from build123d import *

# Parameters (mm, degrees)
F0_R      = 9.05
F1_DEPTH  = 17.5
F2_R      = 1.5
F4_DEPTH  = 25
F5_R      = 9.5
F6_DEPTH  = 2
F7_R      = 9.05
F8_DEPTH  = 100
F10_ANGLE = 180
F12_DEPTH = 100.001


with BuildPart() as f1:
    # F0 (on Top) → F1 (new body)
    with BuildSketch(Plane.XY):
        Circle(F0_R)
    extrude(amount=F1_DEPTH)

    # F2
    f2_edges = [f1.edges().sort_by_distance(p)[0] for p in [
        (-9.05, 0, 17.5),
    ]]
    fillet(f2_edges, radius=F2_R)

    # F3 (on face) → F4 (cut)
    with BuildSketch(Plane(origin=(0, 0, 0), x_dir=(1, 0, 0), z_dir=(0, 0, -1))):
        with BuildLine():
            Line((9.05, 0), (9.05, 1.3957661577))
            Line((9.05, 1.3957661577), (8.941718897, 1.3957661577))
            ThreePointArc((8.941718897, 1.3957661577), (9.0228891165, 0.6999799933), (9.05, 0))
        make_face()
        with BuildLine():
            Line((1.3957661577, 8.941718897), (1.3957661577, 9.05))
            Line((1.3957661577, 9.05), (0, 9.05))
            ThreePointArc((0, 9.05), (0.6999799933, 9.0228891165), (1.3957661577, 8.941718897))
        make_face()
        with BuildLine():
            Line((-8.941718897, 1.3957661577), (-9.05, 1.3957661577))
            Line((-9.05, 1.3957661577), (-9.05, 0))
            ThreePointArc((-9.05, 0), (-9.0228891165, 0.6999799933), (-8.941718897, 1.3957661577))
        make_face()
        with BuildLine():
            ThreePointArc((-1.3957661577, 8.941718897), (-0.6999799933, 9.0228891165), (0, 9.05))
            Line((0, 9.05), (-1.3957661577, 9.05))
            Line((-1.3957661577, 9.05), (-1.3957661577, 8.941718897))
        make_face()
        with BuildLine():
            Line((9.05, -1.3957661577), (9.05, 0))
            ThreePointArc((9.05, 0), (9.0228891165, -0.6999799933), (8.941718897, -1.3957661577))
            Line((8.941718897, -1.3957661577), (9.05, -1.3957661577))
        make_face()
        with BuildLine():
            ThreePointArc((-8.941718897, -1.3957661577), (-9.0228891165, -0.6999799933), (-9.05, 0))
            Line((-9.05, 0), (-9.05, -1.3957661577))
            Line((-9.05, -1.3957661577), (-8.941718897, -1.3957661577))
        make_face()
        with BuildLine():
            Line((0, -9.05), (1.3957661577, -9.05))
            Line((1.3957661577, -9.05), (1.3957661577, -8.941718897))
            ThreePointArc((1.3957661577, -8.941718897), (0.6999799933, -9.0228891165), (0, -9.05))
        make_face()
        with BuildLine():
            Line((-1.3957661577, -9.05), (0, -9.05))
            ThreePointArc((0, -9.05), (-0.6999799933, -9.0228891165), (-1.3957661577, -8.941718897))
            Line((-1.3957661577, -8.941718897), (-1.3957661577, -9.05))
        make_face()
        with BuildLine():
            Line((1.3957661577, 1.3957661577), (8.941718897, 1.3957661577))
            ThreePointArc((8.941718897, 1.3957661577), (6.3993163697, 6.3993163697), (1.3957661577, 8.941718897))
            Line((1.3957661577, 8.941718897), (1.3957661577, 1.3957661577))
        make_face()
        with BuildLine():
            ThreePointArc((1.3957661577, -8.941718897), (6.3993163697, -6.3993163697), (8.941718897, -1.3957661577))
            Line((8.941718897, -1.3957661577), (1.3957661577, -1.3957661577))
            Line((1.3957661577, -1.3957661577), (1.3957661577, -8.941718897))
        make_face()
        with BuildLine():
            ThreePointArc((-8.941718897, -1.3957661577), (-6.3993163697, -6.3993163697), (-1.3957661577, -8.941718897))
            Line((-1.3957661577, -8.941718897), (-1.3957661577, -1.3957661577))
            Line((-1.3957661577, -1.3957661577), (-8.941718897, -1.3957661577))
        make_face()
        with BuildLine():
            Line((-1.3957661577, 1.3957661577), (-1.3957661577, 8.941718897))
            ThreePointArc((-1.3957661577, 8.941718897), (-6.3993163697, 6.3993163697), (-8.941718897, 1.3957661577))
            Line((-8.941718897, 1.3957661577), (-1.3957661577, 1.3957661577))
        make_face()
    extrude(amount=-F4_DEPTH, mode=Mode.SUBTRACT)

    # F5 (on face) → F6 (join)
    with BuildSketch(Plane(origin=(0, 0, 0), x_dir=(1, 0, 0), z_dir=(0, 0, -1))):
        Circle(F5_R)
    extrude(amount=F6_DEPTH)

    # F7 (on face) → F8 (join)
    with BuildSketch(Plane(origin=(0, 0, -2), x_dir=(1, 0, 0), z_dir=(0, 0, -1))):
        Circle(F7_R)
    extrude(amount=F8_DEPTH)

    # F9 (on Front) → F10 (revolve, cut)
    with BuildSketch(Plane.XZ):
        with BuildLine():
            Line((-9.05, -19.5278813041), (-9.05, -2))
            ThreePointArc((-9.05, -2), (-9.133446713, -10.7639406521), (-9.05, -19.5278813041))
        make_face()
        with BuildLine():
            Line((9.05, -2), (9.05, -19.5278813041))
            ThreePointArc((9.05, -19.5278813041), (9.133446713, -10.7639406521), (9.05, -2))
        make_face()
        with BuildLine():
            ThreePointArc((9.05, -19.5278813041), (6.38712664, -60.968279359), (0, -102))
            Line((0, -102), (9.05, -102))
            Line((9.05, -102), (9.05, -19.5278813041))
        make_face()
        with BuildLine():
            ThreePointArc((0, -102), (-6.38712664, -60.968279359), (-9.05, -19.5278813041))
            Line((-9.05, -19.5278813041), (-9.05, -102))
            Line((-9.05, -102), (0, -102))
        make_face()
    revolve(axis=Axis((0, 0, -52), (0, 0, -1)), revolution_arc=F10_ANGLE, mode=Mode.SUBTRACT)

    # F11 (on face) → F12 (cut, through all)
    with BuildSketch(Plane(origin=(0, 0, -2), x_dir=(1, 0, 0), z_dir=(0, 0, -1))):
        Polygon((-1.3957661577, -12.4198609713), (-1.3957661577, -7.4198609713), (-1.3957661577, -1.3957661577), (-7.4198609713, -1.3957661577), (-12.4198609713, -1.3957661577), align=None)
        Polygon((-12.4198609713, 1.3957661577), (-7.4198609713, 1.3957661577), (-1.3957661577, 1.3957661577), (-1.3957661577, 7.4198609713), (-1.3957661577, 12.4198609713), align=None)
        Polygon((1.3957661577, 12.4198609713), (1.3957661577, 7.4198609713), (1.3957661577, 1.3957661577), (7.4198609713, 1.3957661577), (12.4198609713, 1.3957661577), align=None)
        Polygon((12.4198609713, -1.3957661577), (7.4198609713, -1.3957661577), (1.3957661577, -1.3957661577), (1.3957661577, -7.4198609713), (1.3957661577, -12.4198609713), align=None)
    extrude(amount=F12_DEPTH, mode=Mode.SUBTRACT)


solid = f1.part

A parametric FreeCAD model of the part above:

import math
import FreeCAD as App
import Part
import Sketcher


def edges_at(feature, points):
    """Names of the edges that pass closest to the given points."""
    edges = feature.Shape.Edges
    near = lambda p: min(range(len(edges)), key=lambda i: edges[i].distToShape(Part.Vertex(*p))[0])
    return sorted({f"Edge{near(p) + 1}" for p in points})

doc = App.newDocument("Part")
body = doc.addObject("PartDesign::Body", "Body")

sketch1 = doc.addObject("Sketcher::SketchObject", "Sketch")
body.addObject(sketch1)
sketch1.AttachmentSupport = (doc.XY_Plane, [""])
sketch1.MapMode = "FlatFace"
sketch1.addGeometry(Part.Circle(App.Vector(0, 0, 0), App.Vector(0, 0, 1), 9), False)
sketch1.addConstraint([
    Sketcher.Constraint("Coincident", 0, 3, -1, 1),
    Sketcher.Constraint("Diameter", 0, 18.1),
])
pad1 = doc.addObject("PartDesign::Pad", "Pad")
body.addObject(pad1)
pad1.Profile = sketch1
pad1.Length = 17.5
doc.recompute()

fillet = doc.addObject("PartDesign::Fillet", "Fillet")
body.addObject(fillet)
fillet.Base = (pad1, edges_at(pad1, [(-9.05, 0, 17.5)]))
fillet.Radius = 1.5

sketch2 = doc.addObject("Sketcher::SketchObject", "Sketch001")
body.addObject(sketch2)
sketch2.AttachmentSupport = (doc.XY_Plane, [""])
sketch2.MapMode = "FlatFace"
sketch2.addGeometry([
    Part.LineSegment(App.Vector(9.05, 0, 0), App.Vector(9.05, -1.4, 0)),
    Part.LineSegment(App.Vector(9.05, -1.4, 0), App.Vector(8.94, -1.4, 0)),
    Part.ArcOfCircle(Part.Circle(App.Vector(0, 0, 0), App.Vector(0, 0, 1), 9.05), math.radians(-8.87), math.radians(0)),
    Part.LineSegment(App.Vector(1.4, -8.94, 0), App.Vector(1.4, -9.05, 0)),
    Part.LineSegment(App.Vector(1.4, -9.05, 0), App.Vector(0, -9.05, 0)),
    Part.ArcOfCircle(Part.Circle(App.Vector(0, 0, 0), App.Vector(0, 0, 1), 9.05), math.radians(-90), math.radians(-81.13)),
    Part.LineSegment(App.Vector(-8.94, -1.4, 0), App.Vector(-9.05, -1.4, 0)),
    Part.LineSegment(App.Vector(-9.05, -1.4, 0), App.Vector(-9.05, 0, 0)),
    Part.ArcOfCircle(Part.Circle(App.Vector(0, 0, 0), App.Vector(0, 0, 1), 9.05), math.radians(180), math.radians(188.87)),
    Part.ArcOfCircle(Part.Circle(App.Vector(0, 0, 0), App.Vector(0, 0, 1), 9.05), math.radians(-98.87), math.radians(-90)),
    Part.LineSegment(App.Vector(0, -9.05, 0), App.Vector(-1.4, -9.05, 0)),
    Part.LineSegment(App.Vector(-1.4, -9.05, 0), App.Vector(-1.4, -8.94, 0)),
    Part.LineSegment(App.Vector(9.05, 1.4, 0), App.Vector(9.05, 0, 0)),
    Part.ArcOfCircle(Part.Circle(App.Vector(0, 0, 0), App.Vector(0, 0, 1), 9.05), math.radians(0), math.radians(8.87)),
    Part.LineSegment(App.Vector(8.94, 1.4, 0), App.Vector(9.05, 1.4, 0)),
    Part.ArcOfCircle(Part.Circle(App.Vector(0, 0, 0), App.Vector(0, 0, 1), 9.05), math.radians(171.13), math.radians(180)),
    Part.LineSegment(App.Vector(-9.05, 0, 0), App.Vector(-9.05, 1.4, 0)),
    Part.LineSegment(App.Vector(-9.05, 1.4, 0), App.Vector(-8.94, 1.4, 0)),
    Part.LineSegment(App.Vector(0, 9.05, 0), App.Vector(1.4, 9.05, 0)),
    Part.LineSegment(App.Vector(1.4, 9.05, 0), App.Vector(1.4, 8.94, 0)),
    Part.ArcOfCircle(Part.Circle(App.Vector(0, 0, 0), App.Vector(0, 0, 1), 9.05), math.radians(81.13), math.radians(90)),
    Part.LineSegment(App.Vector(-1.4, 9.05, 0), App.Vector(0, 9.05, 0)),
    Part.ArcOfCircle(Part.Circle(App.Vector(0, 0, 0), App.Vector(0, 0, 1), 9.05), math.radians(90), math.radians(98.87)),
    Part.LineSegment(App.Vector(-1.4, 8.94, 0), App.Vector(-1.4, 9.05, 0)),
    Part.LineSegment(App.Vector(1.4, -1.4, 0), App.Vector(8.94, -1.4, 0)),
    Part.ArcOfCircle(Part.Circle(App.Vector(0, 0, 0), App.Vector(0, 0, 1), 9.05), math.radians(-81), math.radians(-9)),
    Part.LineSegment(App.Vector(1.4, -8.94, 0), App.Vector(1.4, -1.4, 0)),
    Part.ArcOfCircle(Part.Circle(App.Vector(0, 0, 0), App.Vector(0, 0, 1), 9.05), math.radians(9), math.radians(81)),
    Part.LineSegment(App.Vector(8.94, 1.4, 0), App.Vector(1.4, 1.4, 0)),
    Part.LineSegment(App.Vector(1.4, 1.4, 0), App.Vector(1.4, 8.94, 0)),
    Part.ArcOfCircle(Part.Circle(App.Vector(0, 0, 0), App.Vector(0, 0, 1), 9.05), math.radians(99), math.radians(171)),
    Part.LineSegment(App.Vector(-1.4, 8.94, 0), App.Vector(-1.4, 1.4, 0)),
    Part.LineSegment(App.Vector(-1.4, 1.4, 0), App.Vector(-8.94, 1.4, 0)),
    Part.LineSegment(App.Vector(-1.4, -1.4, 0), App.Vector(-1.4, -8.94, 0)),
    Part.ArcOfCircle(Part.Circle(App.Vector(0, 0, 0), App.Vector(0, 0, 1), 9.05), math.radians(-171), math.radians(-99)),
    Part.LineSegment(App.Vector(-8.94, -1.4, 0), App.Vector(-1.4, -1.4, 0)),
], False)
sketch2.addConstraint([
    Sketcher.Constraint("Coincident", 0, 2, 1, 1),
    Sketcher.Constraint("Coincident", 1, 2, 2, 1),
    Sketcher.Constraint("Tangent", 2, 2, 0, 1),
    Sketcher.Constraint("Coincident", 3, 2, 4, 1),
    Sketcher.Constraint("Tangent", 4, 2, 5, 1),
    Sketcher.Constraint("Coincident", 5, 2, 3, 1),
    Sketcher.Constraint("Coincident", 6, 2, 7, 1),
    Sketcher.Constraint("Tangent", 7, 2, 8, 1),
    Sketcher.Constraint("Coincident", 8, 2, 6, 1),
    Sketcher.Constraint("Tangent", 9, 2, 10, 1),
    Sketcher.Constraint("Coincident", 10, 2, 11, 1),
    Sketcher.Constraint("Coincident", 11, 2, 9, 1),
    Sketcher.Constraint("Tangent", 12, 2, 13, 1),
    Sketcher.Constraint("Coincident", 13, 2, 14, 1),
    Sketcher.Constraint("Coincident", 14, 2, 12, 1),
    Sketcher.Constraint("Tangent", 15, 2, 16, 1),
    Sketcher.Constraint("Coincident", 16, 2, 17, 1),
    Sketcher.Constraint("Coincident", 17, 2, 15, 1),
    Sketcher.Constraint("Coincident", 18, 2, 19, 1),
    Sketcher.Constraint("Coincident", 19, 2, 20, 1),
    Sketcher.Constraint("Tangent", 20, 2, 18, 1),
    Sketcher.Constraint("Tangent", 21, 2, 22, 1),
    Sketcher.Constraint("Coincident", 22, 2, 23, 1),
    Sketcher.Constraint("Coincident", 23, 2, 21, 1),
    Sketcher.Constraint("Coincident", 24, 2, 25, 2),
    Sketcher.Constraint("Coincident", 25, 1, 26, 1),
    Sketcher.Constraint("Coincident", 26, 2, 24, 1),
    Sketcher.Constraint("Coincident", 27, 1, 28, 1),
    Sketcher.Constraint("Coincident", 28, 2, 29, 1),
    Sketcher.Constraint("Coincident", 29, 2, 27, 2),
    Sketcher.Constraint("Coincident", 30, 1, 31, 1),
    Sketcher.Constraint("Coincident", 31, 2, 32, 1),
    Sketcher.Constraint("Coincident", 32, 2, 30, 2),
    Sketcher.Constraint("Coincident", 33, 2, 34, 2),
    Sketcher.Constraint("Coincident", 34, 1, 35, 1),
    Sketcher.Constraint("Coincident", 35, 2, 33, 1),
    Sketcher.Constraint("Vertical", 0),
    Sketcher.Constraint("Horizontal", 1),
    Sketcher.Constraint("Vertical", 3),
    Sketcher.Constraint("Horizontal", 4),
    Sketcher.Constraint("Horizontal", 6),
    Sketcher.Constraint("Vertical", 7),
    Sketcher.Constraint("Horizontal", 10),
    Sketcher.Constraint("Vertical", 11),
    Sketcher.Constraint("Vertical", 12),
    Sketcher.Constraint("Horizontal", 14),
    Sketcher.Constraint("Vertical", 16),
    Sketcher.Constraint("Horizontal", 17),
    Sketcher.Constraint("Horizontal", 18),
    Sketcher.Constraint("Vertical", 19),
    Sketcher.Constraint("Horizontal", 21),
    Sketcher.Constraint("Vertical", 23),
    Sketcher.Constraint("Horizontal", 24),
    Sketcher.Constraint("Vertical", 26),
    Sketcher.Constraint("Horizontal", 28),
    Sketcher.Constraint("Vertical", 29),
    Sketcher.Constraint("Vertical", 31),
    Sketcher.Constraint("Horizontal", 32),
    Sketcher.Constraint("Vertical", 33),
    Sketcher.Constraint("Horizontal", 35),
    Sketcher.Constraint("Coincident", 2, 3, -1, 1),
    Sketcher.Constraint("Coincident", 5, 3, -1, 1),
    Sketcher.Constraint("Coincident", 8, 3, -1, 1),
    Sketcher.Constraint("Coincident", 9, 3, -1, 1),
    Sketcher.Constraint("Coincident", 13, 3, -1, 1),
    Sketcher.Constraint("Coincident", 15, 3, -1, 1),
    Sketcher.Constraint("Coincident", 20, 3, -1, 1),
    Sketcher.Constraint("Coincident", 22, 3, -1, 1),
    Sketcher.Constraint("Coincident", 25, 3, -1, 1),
    Sketcher.Constraint("Coincident", 27, 3, -1, 1),
    Sketcher.Constraint("Coincident", 30, 3, -1, 1),
    Sketcher.Constraint("Coincident", 34, 3, -1, 1),
    Sketcher.Constraint("Coincident", 24, 2, 1, 2),
    Sketcher.Constraint("Coincident", 25, 1, 5, 2),
    Sketcher.Constraint("Coincident", 27, 1, 13, 2),
    Sketcher.Constraint("Coincident", 29, 2, 19, 2),
    Sketcher.Constraint("Coincident", 30, 1, 22, 2),
    Sketcher.Constraint("Coincident", 32, 2, 17, 2),
    Sketcher.Constraint("Coincident", 33, 2, 11, 2),
    Sketcher.Constraint("Coincident", 34, 1, 8, 2),
    Sketcher.Constraint("Equal", 5, 8),
    Sketcher.Constraint("Equal", 9, 13),
    Sketcher.Constraint("Equal", 13, 15),
    Sketcher.Constraint("Symmetric", 26, 2, 31, 2, -1, 1),
    Sketcher.Constraint("Symmetric", 28, 2, 35, 2, -1, 1),
    Sketcher.Constraint("Symmetric", 28, 2, 31, 2, -2),
    Sketcher.Constraint("Equal", 21, 0),
    Sketcher.Constraint("Radius", 2, 9.05),
    Sketcher.Constraint("DistanceX", 1, 2, 1, 1, 0.108281),
])
pocket1 = doc.addObject("PartDesign::Pocket", "Pocket")
body.addObject(pocket1)
pocket1.Profile = sketch2
pocket1.Length = 25
pocket1.Reversed = True

sketch3 = doc.addObject("Sketcher::SketchObject", "Sketch002")
body.addObject(sketch3)
sketch3.AttachmentSupport = (doc.XY_Plane, [""])
sketch3.MapMode = "FlatFace"
sketch3.addGeometry(Part.Circle(App.Vector(0, 0, 0), App.Vector(0, 0, 1), 10), False)
sketch3.addConstraint([
    Sketcher.Constraint("Coincident", 0, 3, -1, 1),
    Sketcher.Constraint("Diameter", 0, 19.0),
])
pad2 = doc.addObject("PartDesign::Pad", "Pad001")
body.addObject(pad2)
pad2.Profile = sketch3
pad2.Length = 2
pad2.Reversed = True

sketch4 = doc.addObject("Sketcher::SketchObject", "Sketch003")
body.addObject(sketch4)
sketch4.AttachmentSupport = (doc.XY_Plane, [""])
sketch4.MapMode = "FlatFace"
sketch4.AttachmentOffset = App.Placement(App.Vector(0, 0, -2), App.Rotation())
sketch4.addGeometry(Part.Circle(App.Vector(0, 0, 0), App.Vector(0, 0, 1), 9), False)
sketch4.addConstraint([
    Sketcher.Constraint("Coincident", 0, 3, -1, 1),
    Sketcher.Constraint("Diameter", 0, 18.1),
])
pad3 = doc.addObject("PartDesign::Pad", "Pad002")
body.addObject(pad3)
pad3.Profile = sketch4
pad3.Length = 100
pad3.Reversed = True

sketch5 = doc.addObject("Sketcher::SketchObject", "Sketch004")
body.addObject(sketch5)
sketch5.AttachmentSupport = (doc.XZ_Plane, [""])
sketch5.MapMode = "FlatFace"
sketch5.addGeometry([
    Part.LineSegment(App.Vector(-9, -20, 0), App.Vector(-9, -2, 0)),
    Part.ArcOfCircle(Part.Circle(App.Vector(451, -11, 0), App.Vector(0, 0, 1), 460), math.radians(178.91), math.radians(181.09)),
    Part.LineSegment(App.Vector(9, -2, 0), App.Vector(9, -20, 0)),
    Part.ArcOfCircle(Part.Circle(App.Vector(-451, -11, 0), App.Vector(0, 0, 1), 460), math.radians(-1.09), math.radians(1.09)),
    Part.ArcOfCircle(Part.Circle(App.Vector(-451, -11, 0), App.Vector(0, 0, 1), 460), math.radians(-11.43), math.radians(-1.09)),
    Part.LineSegment(App.Vector(0, -102, 0), App.Vector(9, -102, 0)),
    Part.LineSegment(App.Vector(9, -102, 0), App.Vector(9, -20, 0)),
    Part.ArcOfCircle(Part.Circle(App.Vector(451, -11, 0), App.Vector(0, 0, 1), 460), math.radians(-178.91), math.radians(-168.57)),
    Part.LineSegment(App.Vector(-9, -20, 0), App.Vector(-9, -102, 0)),
    Part.LineSegment(App.Vector(-9, -102, 0), App.Vector(0, -102, 0)),
], False)
sketch5.addConstraint([
    Sketcher.Constraint("Coincident", 0, 1, 1, 2),
    Sketcher.Constraint("Coincident", 1, 1, 0, 2),
    Sketcher.Constraint("Coincident", 2, 1, 3, 2),
    Sketcher.Constraint("Coincident", 3, 1, 2, 2),
    Sketcher.Constraint("Coincident", 4, 1, 5, 1),
    Sketcher.Constraint("Coincident", 5, 2, 6, 1),
    Sketcher.Constraint("Coincident", 6, 2, 4, 2),
    Sketcher.Constraint("Coincident", 7, 1, 8, 1),
    Sketcher.Constraint("Coincident", 8, 2, 9, 1),
    Sketcher.Constraint("Coincident", 9, 2, 7, 2),
    Sketcher.Constraint("Vertical", 0),
    Sketcher.Constraint("Vertical", 2),
    Sketcher.Constraint("Horizontal", 5),
    Sketcher.Constraint("Vertical", 6),
    Sketcher.Constraint("Vertical", 8),
    Sketcher.Constraint("Horizontal", 9),
    Sketcher.Constraint("Coincident", 4, 3, 3, 3),
    Sketcher.Constraint("Coincident", 7, 3, 1, 3),
    Sketcher.Constraint("Coincident", 6, 2, 3, 1),
    Sketcher.Constraint("Coincident", 7, 1, 0, 1),
    Sketcher.Constraint("Equal", 1, 3),
    Sketcher.Constraint("Symmetric", 1, 3, 3, 3, -2),
    Sketcher.Constraint("Symmetric", 5, 2, 8, 2, -2),
    Sketcher.Constraint("PointOnObject", 4, 1, -2),
    Sketcher.Constraint("DistanceY", 2, 1, -1, 1, 2.0),
    Sketcher.Constraint("DistanceY", 5, 2, -1, 1, 102.0),
    Sketcher.Constraint("DistanceX", 5, 1, 5, 2, 9.05),
    Sketcher.Constraint("Radius", 1, 460.255511),
])
groove = doc.addObject("PartDesign::Groove", "Groove")
body.addObject(groove)
groove.Profile = sketch5
groove.ReferenceAxis = (sketch5, ["V_Axis"])
groove.Angle = 180
groove.Reversed = True

sketch6 = doc.addObject("Sketcher::SketchObject", "Sketch005")
body.addObject(sketch6)
sketch6.AttachmentSupport = (doc.XY_Plane, [""])
sketch6.MapMode = "FlatFace"
sketch6.AttachmentOffset = App.Placement(App.Vector(0, 0, -2), App.Rotation())
sketch6.addGeometry([
    Part.LineSegment(App.Vector(-1, 12, 0), App.Vector(-1, 1, 0)),
    Part.LineSegment(App.Vector(-1, 1, 0), App.Vector(-12, 1, 0)),
    Part.LineSegment(App.Vector(-12, 1, 0), App.Vector(-1, 12, 0)),
    Part.LineSegment(App.Vector(-12, -1, 0), App.Vector(-1, -1, 0)),
    Part.LineSegment(App.Vector(-1, -1, 0), App.Vector(-1, -12, 0)),
    Part.LineSegment(App.Vector(-1, -12, 0), App.Vector(-12, -1, 0)),
    Part.LineSegment(App.Vector(1, -12, 0), App.Vector(1, -1, 0)),
    Part.LineSegment(App.Vector(1, -1, 0), App.Vector(12, -1, 0)),
    Part.LineSegment(App.Vector(12, -1, 0), App.Vector(1, -12, 0)),
    Part.LineSegment(App.Vector(12, 1, 0), App.Vector(1, 1, 0)),
    Part.LineSegment(App.Vector(1, 1, 0), App.Vector(1, 12, 0)),
    Part.LineSegment(App.Vector(1, 12, 0), App.Vector(12, 1, 0)),
], False)
sketch6.addConstraint([
    Sketcher.Constraint("Coincident", 0, 2, 1, 1),
    Sketcher.Constraint("Coincident", 1, 2, 2, 1),
    Sketcher.Constraint("Coincident", 2, 2, 0, 1),
    Sketcher.Constraint("Coincident", 3, 2, 4, 1),
    Sketcher.Constraint("Coincident", 4, 2, 5, 1),
    Sketcher.Constraint("Coincident", 5, 2, 3, 1),
    Sketcher.Constraint("Coincident", 6, 2, 7, 1),
    Sketcher.Constraint("Coincident", 7, 2, 8, 1),
    Sketcher.Constraint("Coincident", 8, 2, 6, 1),
    Sketcher.Constraint("Coincident", 9, 2, 10, 1),
    Sketcher.Constraint("Coincident", 10, 2, 11, 1),
    Sketcher.Constraint("Coincident", 11, 2, 9, 1),
    Sketcher.Constraint("Vertical", 0),
    Sketcher.Constraint("Horizontal", 1),
    Sketcher.Constraint("Horizontal", 3),
    Sketcher.Constraint("Vertical", 4),
    Sketcher.Constraint("Vertical", 6),
    Sketcher.Constraint("Horizontal", 7),
    Sketcher.Constraint("Horizontal", 9),
    Sketcher.Constraint("Vertical", 10),
    Sketcher.Constraint("Symmetric", 0, 2, 6, 2, -1, 1),
    Sketcher.Constraint("Symmetric", 3, 2, 9, 2, -1, 1),
    Sketcher.Constraint("Symmetric", 3, 2, 6, 2, -2),
    Sketcher.Constraint("Perpendicular", 2, 5),
    Sketcher.Constraint("Perpendicular", 5, 8),
    Sketcher.Constraint("Perpendicular", 8, 11),
    Sketcher.Constraint("Horizontal", 4, 2, 8, 2),
    Sketcher.Constraint("Horizontal", 2, 2, 10, 2),
    Sketcher.Constraint("Vertical", 1, 2, 5, 2),
    Sketcher.Constraint("Vertical", 7, 2, 11, 2),
    Sketcher.Constraint("DistanceX", 1, 2, 1, 1, 11.024095),
    Sketcher.Constraint("DistanceX", 1, 2, -1, 1, 12.419861),
    Sketcher.Constraint("DistanceY", -1, 1, 2, 2, 12.419861),
])
pocket2 = doc.addObject("PartDesign::Pocket", "Pocket001")
body.addObject(pocket2)
pocket2.Profile = sketch6
pocket2.Type = "ThroughAll"

doc.recompute()
